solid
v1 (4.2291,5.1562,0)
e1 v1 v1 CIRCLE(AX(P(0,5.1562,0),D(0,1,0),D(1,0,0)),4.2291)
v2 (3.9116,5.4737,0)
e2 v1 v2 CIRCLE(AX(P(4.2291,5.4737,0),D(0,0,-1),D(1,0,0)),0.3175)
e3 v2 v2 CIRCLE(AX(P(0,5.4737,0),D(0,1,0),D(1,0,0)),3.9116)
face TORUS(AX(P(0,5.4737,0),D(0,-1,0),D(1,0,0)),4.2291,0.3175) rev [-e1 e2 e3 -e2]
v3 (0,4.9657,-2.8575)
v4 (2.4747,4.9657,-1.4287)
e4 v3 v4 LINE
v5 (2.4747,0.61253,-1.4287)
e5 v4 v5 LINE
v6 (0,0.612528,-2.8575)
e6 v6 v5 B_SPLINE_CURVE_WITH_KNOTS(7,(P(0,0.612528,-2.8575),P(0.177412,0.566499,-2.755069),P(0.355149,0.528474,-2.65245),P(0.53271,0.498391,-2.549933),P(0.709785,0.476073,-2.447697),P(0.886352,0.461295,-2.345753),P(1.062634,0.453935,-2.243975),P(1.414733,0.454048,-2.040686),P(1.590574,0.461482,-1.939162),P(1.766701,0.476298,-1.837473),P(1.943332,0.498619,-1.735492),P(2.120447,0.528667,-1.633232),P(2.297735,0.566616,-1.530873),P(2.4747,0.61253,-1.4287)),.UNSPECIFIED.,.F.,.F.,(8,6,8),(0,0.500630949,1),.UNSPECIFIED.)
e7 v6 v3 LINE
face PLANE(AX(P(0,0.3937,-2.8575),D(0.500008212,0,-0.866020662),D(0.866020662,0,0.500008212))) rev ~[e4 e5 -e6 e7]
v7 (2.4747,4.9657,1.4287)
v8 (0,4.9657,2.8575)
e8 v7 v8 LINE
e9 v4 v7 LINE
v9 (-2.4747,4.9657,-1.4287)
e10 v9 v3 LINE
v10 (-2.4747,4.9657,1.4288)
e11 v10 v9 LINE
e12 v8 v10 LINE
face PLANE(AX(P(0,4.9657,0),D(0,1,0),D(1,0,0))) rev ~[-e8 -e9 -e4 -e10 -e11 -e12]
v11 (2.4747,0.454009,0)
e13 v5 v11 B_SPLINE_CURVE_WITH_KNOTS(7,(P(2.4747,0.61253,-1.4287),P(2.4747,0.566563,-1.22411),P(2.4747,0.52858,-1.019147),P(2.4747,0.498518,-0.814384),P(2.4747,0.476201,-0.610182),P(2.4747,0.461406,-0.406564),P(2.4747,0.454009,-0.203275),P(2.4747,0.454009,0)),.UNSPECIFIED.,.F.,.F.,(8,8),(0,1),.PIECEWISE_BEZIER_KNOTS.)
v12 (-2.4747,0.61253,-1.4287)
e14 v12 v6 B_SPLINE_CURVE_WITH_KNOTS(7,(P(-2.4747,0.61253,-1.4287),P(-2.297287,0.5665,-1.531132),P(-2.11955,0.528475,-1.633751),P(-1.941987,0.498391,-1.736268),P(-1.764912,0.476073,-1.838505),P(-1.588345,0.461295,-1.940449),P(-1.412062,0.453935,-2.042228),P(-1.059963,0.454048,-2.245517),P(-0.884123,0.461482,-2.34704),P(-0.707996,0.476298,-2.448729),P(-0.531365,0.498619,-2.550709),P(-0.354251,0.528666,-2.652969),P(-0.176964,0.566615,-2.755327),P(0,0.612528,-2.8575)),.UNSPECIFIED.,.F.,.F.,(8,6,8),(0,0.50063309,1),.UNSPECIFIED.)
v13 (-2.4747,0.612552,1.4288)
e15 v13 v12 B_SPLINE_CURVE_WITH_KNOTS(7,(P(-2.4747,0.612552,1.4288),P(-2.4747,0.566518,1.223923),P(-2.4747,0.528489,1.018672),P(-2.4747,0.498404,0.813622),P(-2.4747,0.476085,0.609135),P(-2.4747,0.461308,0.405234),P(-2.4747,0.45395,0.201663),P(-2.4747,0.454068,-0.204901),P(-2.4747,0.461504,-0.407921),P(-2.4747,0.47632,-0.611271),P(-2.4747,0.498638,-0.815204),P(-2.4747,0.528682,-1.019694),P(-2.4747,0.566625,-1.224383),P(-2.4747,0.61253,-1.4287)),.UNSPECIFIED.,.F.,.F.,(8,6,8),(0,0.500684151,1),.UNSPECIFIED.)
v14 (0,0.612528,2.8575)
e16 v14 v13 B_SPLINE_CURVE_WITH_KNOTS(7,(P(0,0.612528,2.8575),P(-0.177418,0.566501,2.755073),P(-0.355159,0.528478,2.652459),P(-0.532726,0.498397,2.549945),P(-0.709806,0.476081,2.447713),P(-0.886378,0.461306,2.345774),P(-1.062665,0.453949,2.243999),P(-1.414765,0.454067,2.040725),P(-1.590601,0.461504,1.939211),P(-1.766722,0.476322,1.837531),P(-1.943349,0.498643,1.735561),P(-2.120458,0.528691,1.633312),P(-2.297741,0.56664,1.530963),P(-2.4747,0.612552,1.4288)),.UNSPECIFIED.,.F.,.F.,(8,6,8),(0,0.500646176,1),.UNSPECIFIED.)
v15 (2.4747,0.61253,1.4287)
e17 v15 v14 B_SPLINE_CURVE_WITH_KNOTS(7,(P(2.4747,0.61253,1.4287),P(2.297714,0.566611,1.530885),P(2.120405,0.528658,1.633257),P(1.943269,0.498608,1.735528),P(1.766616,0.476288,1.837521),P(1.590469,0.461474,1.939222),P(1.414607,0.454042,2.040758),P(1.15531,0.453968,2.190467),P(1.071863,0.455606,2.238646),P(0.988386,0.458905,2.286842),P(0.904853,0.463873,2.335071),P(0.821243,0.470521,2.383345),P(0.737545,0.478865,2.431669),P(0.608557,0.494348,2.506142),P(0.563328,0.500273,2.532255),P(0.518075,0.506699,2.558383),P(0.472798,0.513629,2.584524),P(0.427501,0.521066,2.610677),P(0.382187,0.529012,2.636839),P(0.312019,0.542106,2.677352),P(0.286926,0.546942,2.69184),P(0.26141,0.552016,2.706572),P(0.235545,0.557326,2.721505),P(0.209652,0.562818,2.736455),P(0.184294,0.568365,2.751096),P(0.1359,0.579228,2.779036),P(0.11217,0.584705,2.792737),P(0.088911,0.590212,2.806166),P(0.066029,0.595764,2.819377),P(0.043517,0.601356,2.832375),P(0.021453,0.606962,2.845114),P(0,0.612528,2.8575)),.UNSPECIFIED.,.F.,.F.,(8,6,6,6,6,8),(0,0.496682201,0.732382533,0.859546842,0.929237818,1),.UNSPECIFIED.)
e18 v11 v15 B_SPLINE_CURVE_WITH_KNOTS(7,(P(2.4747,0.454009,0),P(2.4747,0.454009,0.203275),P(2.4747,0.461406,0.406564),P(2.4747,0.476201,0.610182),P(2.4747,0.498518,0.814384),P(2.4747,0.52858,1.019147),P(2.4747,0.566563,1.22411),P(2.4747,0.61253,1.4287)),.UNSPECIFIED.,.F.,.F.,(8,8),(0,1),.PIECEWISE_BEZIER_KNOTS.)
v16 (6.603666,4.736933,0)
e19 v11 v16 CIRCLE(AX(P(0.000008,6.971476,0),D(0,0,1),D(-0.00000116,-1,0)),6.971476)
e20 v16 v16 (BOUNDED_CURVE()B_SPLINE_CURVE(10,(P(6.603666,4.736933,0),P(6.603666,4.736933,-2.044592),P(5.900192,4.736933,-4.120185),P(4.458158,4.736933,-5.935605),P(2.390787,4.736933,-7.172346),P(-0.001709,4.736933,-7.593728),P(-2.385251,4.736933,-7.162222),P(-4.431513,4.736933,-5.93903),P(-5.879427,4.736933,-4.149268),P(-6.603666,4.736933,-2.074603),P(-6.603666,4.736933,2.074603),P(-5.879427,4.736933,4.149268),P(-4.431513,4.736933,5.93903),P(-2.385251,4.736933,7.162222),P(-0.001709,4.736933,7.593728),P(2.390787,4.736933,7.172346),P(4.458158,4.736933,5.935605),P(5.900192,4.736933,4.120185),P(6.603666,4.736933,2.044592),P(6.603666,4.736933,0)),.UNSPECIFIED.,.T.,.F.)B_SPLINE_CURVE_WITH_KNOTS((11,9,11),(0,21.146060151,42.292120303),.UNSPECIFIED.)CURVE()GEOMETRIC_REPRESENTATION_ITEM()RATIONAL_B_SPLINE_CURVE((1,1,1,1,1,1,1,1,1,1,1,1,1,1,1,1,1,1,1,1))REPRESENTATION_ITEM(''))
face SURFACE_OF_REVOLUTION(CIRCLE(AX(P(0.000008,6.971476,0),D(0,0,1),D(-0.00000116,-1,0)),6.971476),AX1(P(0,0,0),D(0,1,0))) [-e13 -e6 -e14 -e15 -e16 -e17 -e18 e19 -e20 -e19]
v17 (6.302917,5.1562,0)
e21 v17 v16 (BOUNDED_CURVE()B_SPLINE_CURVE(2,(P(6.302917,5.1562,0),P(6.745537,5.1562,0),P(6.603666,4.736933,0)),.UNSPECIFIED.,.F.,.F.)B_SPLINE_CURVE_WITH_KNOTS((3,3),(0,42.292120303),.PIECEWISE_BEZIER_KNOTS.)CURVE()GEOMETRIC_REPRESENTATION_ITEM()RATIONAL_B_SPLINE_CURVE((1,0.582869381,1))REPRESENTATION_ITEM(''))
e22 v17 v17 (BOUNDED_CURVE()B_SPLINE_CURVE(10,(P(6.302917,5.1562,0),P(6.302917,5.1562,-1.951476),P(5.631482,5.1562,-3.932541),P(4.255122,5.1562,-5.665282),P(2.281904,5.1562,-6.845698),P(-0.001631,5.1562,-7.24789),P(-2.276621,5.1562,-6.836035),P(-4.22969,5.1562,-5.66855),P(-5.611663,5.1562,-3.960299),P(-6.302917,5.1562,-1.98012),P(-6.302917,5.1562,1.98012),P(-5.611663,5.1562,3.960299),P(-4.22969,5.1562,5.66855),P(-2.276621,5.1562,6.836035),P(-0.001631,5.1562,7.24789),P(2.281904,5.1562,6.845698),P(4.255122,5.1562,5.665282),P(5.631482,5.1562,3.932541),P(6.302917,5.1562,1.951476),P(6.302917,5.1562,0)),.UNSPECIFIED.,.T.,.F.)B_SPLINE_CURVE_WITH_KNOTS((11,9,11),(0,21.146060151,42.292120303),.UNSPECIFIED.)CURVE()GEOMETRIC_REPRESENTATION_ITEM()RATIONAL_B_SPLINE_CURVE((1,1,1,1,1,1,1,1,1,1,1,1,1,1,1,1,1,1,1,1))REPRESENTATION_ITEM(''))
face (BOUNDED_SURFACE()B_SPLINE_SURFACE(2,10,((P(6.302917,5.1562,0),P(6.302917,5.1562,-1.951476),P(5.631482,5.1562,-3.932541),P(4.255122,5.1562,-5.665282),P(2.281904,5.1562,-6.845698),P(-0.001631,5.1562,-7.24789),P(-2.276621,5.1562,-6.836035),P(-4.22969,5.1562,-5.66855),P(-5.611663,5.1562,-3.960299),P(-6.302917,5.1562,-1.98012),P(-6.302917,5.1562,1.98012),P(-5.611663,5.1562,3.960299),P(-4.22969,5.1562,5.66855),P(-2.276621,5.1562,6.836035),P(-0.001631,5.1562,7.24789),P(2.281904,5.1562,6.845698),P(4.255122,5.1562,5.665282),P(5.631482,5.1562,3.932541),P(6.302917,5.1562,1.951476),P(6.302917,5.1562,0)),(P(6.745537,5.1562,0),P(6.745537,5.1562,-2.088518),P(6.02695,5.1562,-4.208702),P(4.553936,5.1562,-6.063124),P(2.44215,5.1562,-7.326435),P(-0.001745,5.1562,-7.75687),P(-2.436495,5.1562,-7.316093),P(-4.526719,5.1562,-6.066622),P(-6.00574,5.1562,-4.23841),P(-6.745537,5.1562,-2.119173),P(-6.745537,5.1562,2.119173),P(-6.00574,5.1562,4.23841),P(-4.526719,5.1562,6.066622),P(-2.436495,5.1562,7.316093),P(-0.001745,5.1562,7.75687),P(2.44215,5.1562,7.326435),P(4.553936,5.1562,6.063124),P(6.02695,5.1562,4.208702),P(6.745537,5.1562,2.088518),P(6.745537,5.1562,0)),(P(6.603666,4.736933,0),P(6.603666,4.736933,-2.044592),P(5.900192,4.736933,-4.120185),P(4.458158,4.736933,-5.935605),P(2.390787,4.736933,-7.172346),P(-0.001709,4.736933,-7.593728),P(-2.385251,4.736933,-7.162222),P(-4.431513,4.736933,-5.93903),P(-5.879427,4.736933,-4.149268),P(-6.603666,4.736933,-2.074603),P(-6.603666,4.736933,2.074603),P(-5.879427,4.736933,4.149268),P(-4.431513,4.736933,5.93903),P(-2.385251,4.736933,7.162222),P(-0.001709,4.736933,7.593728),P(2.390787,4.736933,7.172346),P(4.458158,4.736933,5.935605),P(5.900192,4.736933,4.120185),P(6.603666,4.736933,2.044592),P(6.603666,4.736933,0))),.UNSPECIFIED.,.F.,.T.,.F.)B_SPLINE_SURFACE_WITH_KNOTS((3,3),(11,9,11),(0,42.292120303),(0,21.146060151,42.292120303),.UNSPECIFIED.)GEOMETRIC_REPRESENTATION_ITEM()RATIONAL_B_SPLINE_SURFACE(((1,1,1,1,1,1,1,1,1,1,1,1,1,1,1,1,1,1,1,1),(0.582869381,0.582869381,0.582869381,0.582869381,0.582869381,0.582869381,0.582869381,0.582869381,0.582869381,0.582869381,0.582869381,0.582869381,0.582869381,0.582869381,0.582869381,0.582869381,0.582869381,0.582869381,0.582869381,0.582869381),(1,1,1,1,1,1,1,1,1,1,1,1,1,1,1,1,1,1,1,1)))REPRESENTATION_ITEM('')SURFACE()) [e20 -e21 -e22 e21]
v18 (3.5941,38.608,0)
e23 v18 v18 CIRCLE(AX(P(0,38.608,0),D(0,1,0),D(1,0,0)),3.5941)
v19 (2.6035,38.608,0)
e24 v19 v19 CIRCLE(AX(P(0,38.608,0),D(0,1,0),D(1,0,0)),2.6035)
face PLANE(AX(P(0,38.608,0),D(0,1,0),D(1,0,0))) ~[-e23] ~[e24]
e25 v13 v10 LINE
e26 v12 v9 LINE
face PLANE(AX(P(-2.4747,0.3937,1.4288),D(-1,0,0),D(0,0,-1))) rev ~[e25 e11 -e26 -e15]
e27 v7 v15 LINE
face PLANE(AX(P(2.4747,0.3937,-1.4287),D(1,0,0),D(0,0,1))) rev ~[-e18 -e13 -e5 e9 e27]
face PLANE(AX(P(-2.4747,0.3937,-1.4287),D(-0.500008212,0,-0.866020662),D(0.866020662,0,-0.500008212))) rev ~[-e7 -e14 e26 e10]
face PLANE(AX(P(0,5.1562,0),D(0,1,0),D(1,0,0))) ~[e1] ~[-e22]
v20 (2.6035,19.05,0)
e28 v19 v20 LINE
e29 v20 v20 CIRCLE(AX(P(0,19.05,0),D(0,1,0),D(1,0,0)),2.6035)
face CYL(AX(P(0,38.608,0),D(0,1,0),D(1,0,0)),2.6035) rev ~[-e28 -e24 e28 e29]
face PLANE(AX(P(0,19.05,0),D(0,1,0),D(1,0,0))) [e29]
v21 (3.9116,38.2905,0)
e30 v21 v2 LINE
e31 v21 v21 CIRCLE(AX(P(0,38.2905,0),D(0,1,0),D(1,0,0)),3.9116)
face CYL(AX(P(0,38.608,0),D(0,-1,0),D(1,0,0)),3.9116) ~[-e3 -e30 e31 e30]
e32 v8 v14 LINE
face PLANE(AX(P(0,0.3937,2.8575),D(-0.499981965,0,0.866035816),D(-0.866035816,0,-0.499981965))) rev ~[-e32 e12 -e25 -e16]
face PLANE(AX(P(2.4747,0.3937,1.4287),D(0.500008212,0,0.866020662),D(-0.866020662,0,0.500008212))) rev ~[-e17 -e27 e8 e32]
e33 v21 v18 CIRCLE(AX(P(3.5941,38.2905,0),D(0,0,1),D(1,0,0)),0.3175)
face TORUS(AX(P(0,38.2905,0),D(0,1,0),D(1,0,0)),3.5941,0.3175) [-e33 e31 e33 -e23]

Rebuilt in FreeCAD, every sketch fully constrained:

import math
import FreeCAD as App
import Part
import Sketcher
from FreeCAD import Vector
Q = App.Units.Quantity


def edges_at(feature, points):
    """Names of the edges that pass closest to the given points."""
    edges = feature.Shape.Edges
    near = lambda p: min(range(len(edges)), key=lambda i: edges[i].distToShape(Part.Vertex(*p))[0])
    return sorted({f"Edge{near(p) + 1}" for p in points})

doc = App.newDocument("Part")
body = doc.addObject("PartDesign::Body", "Body")

sketch1 = body.newObject("Sketcher::SketchObject", "Sketch")
sketch1.AttachmentSupport = (doc.getObject("XY_Plane"), [""])
sketch1.MapMode = "FlatFace"
sketch1.addGeometry([
    Part.LineSegment(Vector(0, 38.608, 0), Vector(0, 0, 0)),
    Part.ArcOfCircle(Part.Circle(Vector(0, 6.9715, 0), Vector(0, 0, 1), 6.9715), math.radians(-90), math.radians(-15.093151)),
    Part.LineSegment(Vector(6.731, 5.1562, 0), Vector(3.9116, 5.1562, 0)),
    Part.LineSegment(Vector(3.9116, 5.1562, 0), Vector(3.9116, 38.608, 0)),
    Part.LineSegment(Vector(3.9116, 38.608, 0), Vector(0, 38.608, 0)),
], False)
sketch1.addConstraint([
    Sketcher.Constraint("Coincident", 0, 2, 1, 1),
    Sketcher.Constraint("Coincident", 1, 2, 2, 1),
    Sketcher.Constraint("Coincident", 2, 2, 3, 1),
    Sketcher.Constraint("Coincident", 3, 2, 4, 1),
    Sketcher.Constraint("Coincident", 4, 2, 0, 1),
    Sketcher.Constraint("Vertical", 0),
    Sketcher.Constraint("Horizontal", 2),
    Sketcher.Constraint("Vertical", 3),
    Sketcher.Constraint("Horizontal", 4),
    Sketcher.Constraint("Coincident", 0, 2, -1, 1),
    Sketcher.Constraint("PointOnObject", 1, 3, -2),
    Sketcher.Constraint("DistanceY", 0, 2, 0, 1, Q("1.52 in")),
    Sketcher.Constraint("DistanceX", 4, 2, 4, 1, Q("0.154 in")),
    Sketcher.Constraint("DistanceY", 3, 1, 3, 2, Q("1.317 in")),
    Sketcher.Constraint("DistanceX", -1, 1, 1, 2, Q("0.265 in")),
])
revolution = body.newObject("PartDesign::Revolution", "Revolution")
revolution.Profile = sketch1
revolution.ReferenceAxis = (sketch1, ["V_Axis"])
revolution.Angle = 360
doc.recompute()

fillet = body.newObject("PartDesign::Fillet", "Fillet")
fillet.Base = (revolution, edges_at(revolution, [(-6.731, 5.156, 0)]))
fillet.Radius = Q("0.0125 in")

sketch2 = body.newObject("Sketcher::SketchObject", "Sketch001")
sketch2.AttachmentSupport = (doc.getObject("XZ_Plane"), [""])
sketch2.MapMode = "FlatFace"
sketch2.AttachmentOffset = App.Placement(Vector(0, 0, -0.0155 * 25.4), App.Rotation())
sketch2.addGeometry([
    Part.LineSegment(Vector(2.4747, -1.4287, 0), Vector(0, -2.8575, 0)),
    Part.LineSegment(Vector(0, -2.8575, 0), Vector(-2.4747, -1.4287, 0)),
    Part.LineSegment(Vector(-2.4747, -1.4287, 0), Vector(-2.4747, 1.4288, 0)),
    Part.LineSegment(Vector(-2.4747, 1.4288, 0), Vector(0, 2.8575, 0)),
    Part.LineSegment(Vector(0, 2.8575, 0), Vector(2.4747, 1.4287, 0)),
    Part.LineSegment(Vector(2.4747, 1.4287, 0), Vector(2.4747, -1.4287, 0)),
], False)
sketch2.addConstraint([
    Sketcher.Constraint("Coincident", 0, 2, 1, 1),
    Sketcher.Constraint("Coincident", 1, 2, 2, 1),
    Sketcher.Constraint("Coincident", 2, 2, 3, 1),
    Sketcher.Constraint("Coincident", 3, 2, 4, 1),
    Sketcher.Constraint("Coincident", 4, 2, 5, 1),
    Sketcher.Constraint("Coincident", 5, 2, 0, 1),
    Sketcher.Constraint("Vertical", 2),
    Sketcher.Constraint("Vertical", 5),
    Sketcher.Constraint("Symmetric", 0, 2, 3, 2, -1, 1),
    Sketcher.Constraint("Symmetric", 1, 2, 4, 2, -1, 1),
    Sketcher.Constraint("PointOnObject", 0, 2, -2),
    Sketcher.Constraint("Parallel", 0, 3),
    Sketcher.Constraint("Horizontal", 2, 2, 4, 2),
    Sketcher.Constraint("Angle", 0, Q("-149.9995 deg")),
    Sketcher.Constraint("DistanceY", 0, 2, 3, 2, Q("0.225 in")),
    Sketcher.Constraint("DistanceY", 2, 1, 2, 2, Q("0.1125 in")),
])
pocket1 = body.newObject("PartDesign::Pocket", "Pocket")
pocket1.Profile = sketch2
pocket1.Type = "TwoLengths"
pocket1.Length = Q("0.18 in")
pocket1.Length2 = Q("0.09 in")
doc.recompute()

fillet2 = body.newObject("PartDesign::Fillet", "Fillet001")
fillet2.Base = (pocket1, edges_at(pocket1, [(-3.912, 5.156, 0)]))
fillet2.Radius = Q("0.0125 in")
doc.recompute()

fillet3 = body.newObject("PartDesign::Fillet", "Fillet002")
fillet3.Base = (fillet2, edges_at(fillet2, [(-3.912, 38.608, 0)]))
fillet3.Radius = Q("0.0125 in")

sketch3 = body.newObject("Sketcher::SketchObject", "Sketch002")
sketch3.AttachmentSupport = (doc.getObject("XZ_Plane"), [""])
sketch3.MapMode = "FlatFace"
sketch3.AttachmentOffset = App.Placement(Vector(0, 0, -1.52 * 25.4), App.Rotation())
sketch3.addGeometry(Part.Circle(Vector(0, 0, 0), Vector(0, 0, 1), 2.6035), False)
sketch3.addConstraint([
    Sketcher.Constraint("Coincident", 0, 3, -1, 1),
    Sketcher.Constraint("Diameter", 0, Q("0.205 in")),
])
pocket2 = body.newObject("PartDesign::Pocket", "Pocket001")
pocket2.Profile = sketch3
pocket2.Length = Q("0.77 in")
pocket2.Reversed = True

doc.recompute()
